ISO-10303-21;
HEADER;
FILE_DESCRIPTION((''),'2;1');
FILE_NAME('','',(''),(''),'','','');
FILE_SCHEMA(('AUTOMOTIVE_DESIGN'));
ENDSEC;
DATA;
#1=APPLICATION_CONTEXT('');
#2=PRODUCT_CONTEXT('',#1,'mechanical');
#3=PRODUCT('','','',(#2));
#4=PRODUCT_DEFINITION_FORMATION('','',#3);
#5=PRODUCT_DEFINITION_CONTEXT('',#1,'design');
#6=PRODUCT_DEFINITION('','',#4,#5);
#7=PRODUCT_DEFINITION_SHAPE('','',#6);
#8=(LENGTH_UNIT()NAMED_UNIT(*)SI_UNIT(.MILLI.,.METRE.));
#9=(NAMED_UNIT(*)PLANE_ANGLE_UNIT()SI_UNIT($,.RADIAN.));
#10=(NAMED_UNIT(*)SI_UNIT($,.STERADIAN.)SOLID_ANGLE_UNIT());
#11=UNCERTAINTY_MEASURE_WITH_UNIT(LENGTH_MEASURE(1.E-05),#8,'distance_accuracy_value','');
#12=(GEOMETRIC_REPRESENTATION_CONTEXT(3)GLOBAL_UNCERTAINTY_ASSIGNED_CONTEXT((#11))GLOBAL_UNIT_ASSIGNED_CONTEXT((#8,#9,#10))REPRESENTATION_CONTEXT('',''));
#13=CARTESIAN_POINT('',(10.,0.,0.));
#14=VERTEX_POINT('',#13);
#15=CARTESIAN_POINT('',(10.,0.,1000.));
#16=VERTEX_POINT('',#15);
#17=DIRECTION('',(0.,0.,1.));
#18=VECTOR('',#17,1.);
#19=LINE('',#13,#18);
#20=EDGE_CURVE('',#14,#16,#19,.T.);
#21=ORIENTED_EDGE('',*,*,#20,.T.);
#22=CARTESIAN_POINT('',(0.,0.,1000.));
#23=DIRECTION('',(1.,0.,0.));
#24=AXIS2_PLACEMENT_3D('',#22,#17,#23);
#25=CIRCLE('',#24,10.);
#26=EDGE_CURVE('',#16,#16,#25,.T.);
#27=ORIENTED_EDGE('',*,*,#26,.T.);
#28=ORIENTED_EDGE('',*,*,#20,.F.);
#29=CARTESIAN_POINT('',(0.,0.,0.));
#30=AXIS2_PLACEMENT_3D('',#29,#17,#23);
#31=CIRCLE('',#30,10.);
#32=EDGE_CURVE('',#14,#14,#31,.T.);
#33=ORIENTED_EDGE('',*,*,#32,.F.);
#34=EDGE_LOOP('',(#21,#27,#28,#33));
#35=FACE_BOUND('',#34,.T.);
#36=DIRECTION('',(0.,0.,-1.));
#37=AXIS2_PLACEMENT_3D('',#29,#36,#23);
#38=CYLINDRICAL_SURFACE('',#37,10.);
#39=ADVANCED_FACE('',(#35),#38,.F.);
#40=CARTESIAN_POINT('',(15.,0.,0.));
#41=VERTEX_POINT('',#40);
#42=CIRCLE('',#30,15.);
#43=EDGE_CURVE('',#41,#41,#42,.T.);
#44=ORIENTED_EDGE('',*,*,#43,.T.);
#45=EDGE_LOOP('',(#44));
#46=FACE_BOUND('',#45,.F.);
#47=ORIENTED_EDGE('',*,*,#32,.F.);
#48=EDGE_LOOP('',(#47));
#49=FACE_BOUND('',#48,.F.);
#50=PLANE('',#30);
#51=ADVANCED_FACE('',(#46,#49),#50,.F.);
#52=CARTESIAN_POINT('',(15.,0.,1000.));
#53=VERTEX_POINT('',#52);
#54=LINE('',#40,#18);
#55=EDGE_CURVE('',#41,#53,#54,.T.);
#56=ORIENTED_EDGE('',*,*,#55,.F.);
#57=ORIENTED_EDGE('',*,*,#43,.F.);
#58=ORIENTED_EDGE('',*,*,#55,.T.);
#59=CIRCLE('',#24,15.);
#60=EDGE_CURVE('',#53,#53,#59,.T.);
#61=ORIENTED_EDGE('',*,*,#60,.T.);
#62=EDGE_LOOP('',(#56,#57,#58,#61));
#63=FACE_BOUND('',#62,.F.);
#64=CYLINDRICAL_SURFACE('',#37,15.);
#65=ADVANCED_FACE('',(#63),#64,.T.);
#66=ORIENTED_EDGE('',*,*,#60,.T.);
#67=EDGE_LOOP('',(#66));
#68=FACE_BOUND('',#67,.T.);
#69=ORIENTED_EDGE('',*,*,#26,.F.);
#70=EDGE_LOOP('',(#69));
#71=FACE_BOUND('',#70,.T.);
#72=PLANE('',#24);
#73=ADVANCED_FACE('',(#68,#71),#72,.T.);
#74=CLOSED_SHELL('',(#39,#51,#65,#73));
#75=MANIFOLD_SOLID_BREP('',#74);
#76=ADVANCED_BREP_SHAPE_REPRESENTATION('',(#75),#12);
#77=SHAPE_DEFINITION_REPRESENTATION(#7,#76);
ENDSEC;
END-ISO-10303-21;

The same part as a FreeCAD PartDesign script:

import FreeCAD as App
import Part
import Sketcher

V = App.Vector


def faces_at(feature, points):
    """Names of the faces that lie closest to the given points."""
    faces = feature.Shape.Faces
    near = lambda p: min(range(len(faces)), key=lambda i: faces[i].distToShape(Part.Vertex(*p))[0])
    return sorted({f"Face{near(p) + 1}" for p in points})

doc = App.newDocument("Part")
body = doc.addObject("PartDesign::Body", "Body")

# Sketch on XY plane
sketch1 = body.newObject("Sketcher::SketchObject", "Sketch")
sketch1.AttachmentSupport = (doc.getObject("XY_Plane"), [""])
sketch1.MapMode = "FlatFace"
sketch1.addGeometry(Part.Circle(V(0, 0, 0), V(0, 0, 1), 15), False)
sketch1.addConstraint([
    Sketcher.Constraint("Coincident", 0, 3, -1, 1),
    Sketcher.Constraint("Diameter", 0, 30.0),
])
pad1 = body.newObject("PartDesign::Pad", "Pad")
pad1.Profile = sketch1
pad1.Length = 1000
doc.recompute()

thickness = body.newObject("PartDesign::Thickness", "Thickness")
thickness.Base = (pad1, faces_at(pad1, [(0, 0, 1000), (0, 0, 0)]))
thickness.Value = 5
thickness.Reversed = True
thickness.Join = "Arc"

doc.recompute()
